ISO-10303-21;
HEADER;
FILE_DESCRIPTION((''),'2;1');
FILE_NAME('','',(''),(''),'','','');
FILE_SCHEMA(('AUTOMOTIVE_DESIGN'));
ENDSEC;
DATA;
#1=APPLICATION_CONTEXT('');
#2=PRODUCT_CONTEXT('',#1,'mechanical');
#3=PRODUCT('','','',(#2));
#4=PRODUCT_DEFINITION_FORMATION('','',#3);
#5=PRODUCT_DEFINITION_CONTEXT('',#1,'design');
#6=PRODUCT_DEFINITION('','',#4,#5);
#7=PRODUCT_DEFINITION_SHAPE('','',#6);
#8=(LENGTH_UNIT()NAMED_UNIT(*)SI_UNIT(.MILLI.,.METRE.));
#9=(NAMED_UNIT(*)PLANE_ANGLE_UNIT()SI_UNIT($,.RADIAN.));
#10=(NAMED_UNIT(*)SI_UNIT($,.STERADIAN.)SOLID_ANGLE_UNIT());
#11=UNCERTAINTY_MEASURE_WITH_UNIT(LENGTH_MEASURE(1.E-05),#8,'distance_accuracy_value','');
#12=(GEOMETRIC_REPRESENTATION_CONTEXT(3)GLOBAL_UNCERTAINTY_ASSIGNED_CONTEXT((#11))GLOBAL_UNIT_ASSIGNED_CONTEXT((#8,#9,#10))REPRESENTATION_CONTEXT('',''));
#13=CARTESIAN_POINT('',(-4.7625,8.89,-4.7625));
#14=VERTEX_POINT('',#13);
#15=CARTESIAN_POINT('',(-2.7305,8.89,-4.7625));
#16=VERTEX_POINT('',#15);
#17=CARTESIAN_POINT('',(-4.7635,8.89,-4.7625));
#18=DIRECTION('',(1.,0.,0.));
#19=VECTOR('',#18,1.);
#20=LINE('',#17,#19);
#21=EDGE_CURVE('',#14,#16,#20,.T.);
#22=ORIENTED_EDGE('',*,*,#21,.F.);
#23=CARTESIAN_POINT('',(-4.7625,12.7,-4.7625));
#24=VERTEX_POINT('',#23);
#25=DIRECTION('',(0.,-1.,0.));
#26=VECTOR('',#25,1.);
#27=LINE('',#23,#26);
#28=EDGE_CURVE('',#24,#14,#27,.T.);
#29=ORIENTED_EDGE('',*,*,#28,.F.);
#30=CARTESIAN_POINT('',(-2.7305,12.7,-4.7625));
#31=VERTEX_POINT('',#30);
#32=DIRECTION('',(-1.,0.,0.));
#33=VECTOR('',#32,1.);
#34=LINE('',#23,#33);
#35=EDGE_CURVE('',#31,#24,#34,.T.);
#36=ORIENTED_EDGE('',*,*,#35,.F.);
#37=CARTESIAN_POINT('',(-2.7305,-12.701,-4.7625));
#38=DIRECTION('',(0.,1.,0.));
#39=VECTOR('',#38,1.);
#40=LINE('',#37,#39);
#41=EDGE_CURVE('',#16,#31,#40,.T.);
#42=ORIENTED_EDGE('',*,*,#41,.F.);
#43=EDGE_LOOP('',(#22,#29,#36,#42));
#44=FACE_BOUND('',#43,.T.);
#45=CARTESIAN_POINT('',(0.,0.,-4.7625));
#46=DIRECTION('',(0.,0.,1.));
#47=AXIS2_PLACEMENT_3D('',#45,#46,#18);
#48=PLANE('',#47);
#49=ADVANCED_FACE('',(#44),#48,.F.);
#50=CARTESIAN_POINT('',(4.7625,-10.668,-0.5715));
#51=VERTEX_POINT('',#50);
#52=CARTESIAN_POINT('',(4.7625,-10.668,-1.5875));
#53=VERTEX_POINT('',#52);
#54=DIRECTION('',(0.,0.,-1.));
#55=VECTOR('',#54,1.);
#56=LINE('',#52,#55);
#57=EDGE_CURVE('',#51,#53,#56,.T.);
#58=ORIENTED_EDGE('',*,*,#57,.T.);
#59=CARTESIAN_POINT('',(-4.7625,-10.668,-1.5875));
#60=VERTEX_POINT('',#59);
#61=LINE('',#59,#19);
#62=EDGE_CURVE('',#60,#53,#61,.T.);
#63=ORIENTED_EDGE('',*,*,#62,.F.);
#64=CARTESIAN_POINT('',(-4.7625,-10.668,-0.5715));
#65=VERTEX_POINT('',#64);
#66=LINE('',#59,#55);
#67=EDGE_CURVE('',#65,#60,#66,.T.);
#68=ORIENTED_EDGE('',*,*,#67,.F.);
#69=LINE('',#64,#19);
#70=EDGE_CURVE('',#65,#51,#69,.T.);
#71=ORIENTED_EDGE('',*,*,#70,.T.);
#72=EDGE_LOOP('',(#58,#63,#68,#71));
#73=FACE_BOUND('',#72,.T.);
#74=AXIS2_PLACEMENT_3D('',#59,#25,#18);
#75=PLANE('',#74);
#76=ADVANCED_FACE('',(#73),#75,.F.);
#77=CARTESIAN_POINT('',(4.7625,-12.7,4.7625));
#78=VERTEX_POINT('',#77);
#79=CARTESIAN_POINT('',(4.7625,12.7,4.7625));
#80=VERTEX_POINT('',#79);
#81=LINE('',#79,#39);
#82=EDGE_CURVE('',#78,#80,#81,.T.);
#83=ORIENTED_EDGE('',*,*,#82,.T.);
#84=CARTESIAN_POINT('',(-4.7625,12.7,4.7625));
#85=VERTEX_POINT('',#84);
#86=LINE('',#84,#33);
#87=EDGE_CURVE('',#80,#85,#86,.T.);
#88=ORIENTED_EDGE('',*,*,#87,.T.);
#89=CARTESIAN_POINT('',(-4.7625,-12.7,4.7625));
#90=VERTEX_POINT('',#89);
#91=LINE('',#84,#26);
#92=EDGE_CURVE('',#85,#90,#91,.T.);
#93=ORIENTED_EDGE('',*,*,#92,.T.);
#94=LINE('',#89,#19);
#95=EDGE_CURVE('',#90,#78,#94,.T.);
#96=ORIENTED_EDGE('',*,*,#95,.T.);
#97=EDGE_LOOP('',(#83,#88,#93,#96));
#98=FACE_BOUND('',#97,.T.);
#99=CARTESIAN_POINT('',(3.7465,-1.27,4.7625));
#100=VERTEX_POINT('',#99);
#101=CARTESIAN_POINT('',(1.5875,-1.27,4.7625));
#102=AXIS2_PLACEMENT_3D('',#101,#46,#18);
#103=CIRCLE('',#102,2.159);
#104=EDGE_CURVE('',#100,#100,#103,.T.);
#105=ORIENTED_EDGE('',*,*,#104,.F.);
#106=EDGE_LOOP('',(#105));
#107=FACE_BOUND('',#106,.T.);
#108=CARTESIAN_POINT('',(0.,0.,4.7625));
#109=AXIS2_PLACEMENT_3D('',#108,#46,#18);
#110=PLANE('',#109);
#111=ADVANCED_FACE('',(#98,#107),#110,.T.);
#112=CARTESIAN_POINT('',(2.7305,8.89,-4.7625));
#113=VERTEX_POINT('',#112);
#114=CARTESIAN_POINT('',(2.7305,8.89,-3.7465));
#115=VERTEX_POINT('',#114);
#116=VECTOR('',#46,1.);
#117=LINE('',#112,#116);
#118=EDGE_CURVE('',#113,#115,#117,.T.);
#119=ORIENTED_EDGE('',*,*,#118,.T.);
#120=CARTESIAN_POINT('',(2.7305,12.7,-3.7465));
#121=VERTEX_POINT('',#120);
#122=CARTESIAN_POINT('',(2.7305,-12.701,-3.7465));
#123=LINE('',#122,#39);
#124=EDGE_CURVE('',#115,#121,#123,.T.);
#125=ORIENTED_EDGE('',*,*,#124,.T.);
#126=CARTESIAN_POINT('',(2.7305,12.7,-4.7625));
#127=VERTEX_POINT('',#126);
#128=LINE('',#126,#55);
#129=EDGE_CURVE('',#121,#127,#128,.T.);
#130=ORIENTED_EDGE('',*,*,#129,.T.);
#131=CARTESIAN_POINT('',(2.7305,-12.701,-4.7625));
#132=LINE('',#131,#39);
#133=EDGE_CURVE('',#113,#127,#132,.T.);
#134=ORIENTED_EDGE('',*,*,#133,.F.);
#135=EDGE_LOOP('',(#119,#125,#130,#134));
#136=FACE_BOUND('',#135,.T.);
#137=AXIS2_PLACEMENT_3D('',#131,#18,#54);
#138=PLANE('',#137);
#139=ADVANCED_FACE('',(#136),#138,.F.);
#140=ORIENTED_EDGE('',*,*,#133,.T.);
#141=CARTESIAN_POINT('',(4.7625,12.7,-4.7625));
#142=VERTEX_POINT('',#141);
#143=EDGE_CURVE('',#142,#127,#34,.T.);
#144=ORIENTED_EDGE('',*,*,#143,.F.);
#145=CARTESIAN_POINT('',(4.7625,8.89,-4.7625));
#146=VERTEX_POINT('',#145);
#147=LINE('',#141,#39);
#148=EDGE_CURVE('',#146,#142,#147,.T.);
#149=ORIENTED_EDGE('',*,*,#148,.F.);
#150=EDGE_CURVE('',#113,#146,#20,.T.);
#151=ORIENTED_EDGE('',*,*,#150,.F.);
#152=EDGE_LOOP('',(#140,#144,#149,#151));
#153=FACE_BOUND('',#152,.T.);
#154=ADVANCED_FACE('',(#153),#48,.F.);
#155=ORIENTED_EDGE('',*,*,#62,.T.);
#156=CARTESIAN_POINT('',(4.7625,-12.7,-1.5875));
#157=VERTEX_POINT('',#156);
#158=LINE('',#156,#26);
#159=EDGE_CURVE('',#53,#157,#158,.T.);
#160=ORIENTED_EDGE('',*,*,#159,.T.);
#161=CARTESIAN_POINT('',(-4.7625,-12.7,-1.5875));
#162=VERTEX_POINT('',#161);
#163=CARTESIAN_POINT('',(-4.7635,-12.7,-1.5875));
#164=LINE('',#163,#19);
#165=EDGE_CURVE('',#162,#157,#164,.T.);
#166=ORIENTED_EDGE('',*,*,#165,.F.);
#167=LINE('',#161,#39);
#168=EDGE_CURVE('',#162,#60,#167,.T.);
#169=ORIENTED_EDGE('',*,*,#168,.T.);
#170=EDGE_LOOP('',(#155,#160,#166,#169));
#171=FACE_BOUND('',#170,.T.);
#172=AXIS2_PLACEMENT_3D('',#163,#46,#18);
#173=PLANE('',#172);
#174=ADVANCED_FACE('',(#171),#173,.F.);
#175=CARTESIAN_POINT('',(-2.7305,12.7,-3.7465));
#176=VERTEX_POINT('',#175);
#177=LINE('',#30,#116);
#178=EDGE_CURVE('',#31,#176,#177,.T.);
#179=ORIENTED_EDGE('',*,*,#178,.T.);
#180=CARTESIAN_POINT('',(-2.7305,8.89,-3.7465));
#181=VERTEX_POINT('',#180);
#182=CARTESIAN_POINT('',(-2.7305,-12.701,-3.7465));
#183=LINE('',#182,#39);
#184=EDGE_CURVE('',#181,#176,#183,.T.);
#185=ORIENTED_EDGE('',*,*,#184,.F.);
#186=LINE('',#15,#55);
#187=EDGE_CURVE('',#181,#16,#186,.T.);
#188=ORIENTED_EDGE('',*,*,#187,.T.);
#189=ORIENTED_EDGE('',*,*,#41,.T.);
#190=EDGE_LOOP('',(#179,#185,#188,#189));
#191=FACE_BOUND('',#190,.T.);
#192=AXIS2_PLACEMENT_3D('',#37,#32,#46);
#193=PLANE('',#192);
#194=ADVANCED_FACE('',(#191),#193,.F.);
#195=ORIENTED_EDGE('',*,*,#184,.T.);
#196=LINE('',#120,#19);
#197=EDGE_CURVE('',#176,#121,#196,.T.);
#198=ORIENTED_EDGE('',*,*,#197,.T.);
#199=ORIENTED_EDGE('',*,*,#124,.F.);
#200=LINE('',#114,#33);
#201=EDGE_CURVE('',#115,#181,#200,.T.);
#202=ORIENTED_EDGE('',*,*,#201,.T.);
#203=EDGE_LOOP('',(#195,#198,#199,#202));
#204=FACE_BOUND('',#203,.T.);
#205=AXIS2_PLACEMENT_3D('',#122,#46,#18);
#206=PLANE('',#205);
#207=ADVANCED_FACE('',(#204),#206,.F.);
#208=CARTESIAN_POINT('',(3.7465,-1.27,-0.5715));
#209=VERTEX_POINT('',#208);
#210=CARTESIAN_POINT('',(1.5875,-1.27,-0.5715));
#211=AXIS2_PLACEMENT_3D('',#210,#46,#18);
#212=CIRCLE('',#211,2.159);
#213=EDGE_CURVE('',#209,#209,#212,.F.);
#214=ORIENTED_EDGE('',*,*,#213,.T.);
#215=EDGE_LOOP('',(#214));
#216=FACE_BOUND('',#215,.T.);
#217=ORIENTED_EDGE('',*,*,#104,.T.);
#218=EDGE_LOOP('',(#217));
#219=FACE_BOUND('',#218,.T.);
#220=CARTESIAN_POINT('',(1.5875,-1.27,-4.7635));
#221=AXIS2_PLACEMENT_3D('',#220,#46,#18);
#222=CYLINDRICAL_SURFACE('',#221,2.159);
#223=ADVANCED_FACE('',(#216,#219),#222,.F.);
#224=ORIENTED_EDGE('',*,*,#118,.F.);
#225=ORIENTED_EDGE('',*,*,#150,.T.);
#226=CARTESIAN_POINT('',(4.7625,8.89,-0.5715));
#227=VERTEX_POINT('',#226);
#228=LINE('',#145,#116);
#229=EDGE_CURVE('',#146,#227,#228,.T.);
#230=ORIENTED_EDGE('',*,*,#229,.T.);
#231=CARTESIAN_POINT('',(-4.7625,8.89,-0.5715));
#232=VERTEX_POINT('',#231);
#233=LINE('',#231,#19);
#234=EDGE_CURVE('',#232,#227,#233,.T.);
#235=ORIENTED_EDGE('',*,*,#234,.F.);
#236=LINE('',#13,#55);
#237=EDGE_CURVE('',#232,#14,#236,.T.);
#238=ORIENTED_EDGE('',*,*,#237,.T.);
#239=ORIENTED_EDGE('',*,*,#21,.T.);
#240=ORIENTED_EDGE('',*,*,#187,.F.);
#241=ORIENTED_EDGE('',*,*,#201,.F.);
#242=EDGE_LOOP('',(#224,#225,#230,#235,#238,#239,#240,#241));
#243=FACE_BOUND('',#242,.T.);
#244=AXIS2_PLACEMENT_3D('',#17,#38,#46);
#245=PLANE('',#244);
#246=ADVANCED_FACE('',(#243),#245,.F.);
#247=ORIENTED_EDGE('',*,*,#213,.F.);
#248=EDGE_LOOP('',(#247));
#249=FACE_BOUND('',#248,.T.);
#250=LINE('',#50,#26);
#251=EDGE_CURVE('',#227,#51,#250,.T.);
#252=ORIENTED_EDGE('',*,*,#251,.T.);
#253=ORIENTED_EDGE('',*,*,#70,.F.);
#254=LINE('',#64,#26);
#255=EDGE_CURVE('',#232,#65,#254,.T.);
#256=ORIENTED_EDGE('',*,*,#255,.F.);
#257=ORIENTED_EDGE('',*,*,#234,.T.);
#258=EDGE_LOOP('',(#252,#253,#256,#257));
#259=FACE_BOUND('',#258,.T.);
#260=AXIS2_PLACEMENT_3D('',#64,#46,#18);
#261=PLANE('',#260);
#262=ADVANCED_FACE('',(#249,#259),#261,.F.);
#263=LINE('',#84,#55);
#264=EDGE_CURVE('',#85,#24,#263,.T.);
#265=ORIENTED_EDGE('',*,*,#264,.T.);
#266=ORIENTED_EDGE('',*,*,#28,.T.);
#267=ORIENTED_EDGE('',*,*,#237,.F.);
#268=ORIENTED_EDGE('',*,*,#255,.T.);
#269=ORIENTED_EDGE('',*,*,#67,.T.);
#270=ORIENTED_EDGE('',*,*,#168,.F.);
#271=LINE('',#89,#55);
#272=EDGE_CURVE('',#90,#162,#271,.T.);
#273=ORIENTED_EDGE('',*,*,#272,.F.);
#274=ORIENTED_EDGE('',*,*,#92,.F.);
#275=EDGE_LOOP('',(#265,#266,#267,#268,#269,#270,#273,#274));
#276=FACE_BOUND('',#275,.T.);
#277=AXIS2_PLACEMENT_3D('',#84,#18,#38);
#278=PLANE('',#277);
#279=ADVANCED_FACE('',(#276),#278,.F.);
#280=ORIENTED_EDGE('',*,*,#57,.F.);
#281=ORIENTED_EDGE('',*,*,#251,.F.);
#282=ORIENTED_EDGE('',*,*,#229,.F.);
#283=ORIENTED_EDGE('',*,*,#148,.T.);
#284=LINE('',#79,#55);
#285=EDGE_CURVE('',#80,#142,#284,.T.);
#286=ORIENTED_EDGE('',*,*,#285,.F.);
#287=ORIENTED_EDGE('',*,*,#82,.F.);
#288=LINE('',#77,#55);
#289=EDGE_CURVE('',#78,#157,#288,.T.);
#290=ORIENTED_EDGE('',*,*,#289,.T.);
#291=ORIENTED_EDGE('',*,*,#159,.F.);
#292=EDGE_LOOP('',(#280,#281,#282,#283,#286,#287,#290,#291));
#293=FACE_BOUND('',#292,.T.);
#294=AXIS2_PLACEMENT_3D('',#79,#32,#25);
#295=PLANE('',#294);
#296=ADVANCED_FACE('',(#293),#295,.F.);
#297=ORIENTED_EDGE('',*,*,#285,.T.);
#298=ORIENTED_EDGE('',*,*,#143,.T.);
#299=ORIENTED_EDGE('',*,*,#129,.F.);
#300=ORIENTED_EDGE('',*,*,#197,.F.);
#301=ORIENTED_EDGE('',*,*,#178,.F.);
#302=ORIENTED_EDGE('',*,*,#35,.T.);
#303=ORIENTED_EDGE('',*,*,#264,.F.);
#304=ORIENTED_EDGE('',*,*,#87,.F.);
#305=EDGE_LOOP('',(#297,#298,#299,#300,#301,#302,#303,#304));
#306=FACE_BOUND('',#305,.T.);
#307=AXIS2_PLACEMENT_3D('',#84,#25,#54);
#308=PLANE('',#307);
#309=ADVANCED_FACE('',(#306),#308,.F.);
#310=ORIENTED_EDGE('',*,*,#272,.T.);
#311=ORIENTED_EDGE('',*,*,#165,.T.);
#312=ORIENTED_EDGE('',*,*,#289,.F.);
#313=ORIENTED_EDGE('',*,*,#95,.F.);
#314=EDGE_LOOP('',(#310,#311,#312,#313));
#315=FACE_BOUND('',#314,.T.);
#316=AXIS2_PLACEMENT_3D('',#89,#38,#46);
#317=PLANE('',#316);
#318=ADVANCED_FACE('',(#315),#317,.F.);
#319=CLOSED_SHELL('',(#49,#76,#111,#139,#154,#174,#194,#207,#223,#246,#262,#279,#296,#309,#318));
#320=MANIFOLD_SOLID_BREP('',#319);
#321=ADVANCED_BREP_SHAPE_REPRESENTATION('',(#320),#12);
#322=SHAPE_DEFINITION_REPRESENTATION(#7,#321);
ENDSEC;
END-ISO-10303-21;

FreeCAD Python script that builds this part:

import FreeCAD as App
import Part
import Sketcher
from FreeCAD import Vector
Q = App.Units.Quantity

doc = App.newDocument("Part")
body = doc.addObject("PartDesign::Body", "Body")

# Sketch on XY plane
sketch1 = doc.addObject("Sketcher::SketchObject", "Sketch")
body.addObject(sketch1)
sketch1.AttachmentSupport = (doc.XY_Plane, [""])
sketch1.MapMode = "FlatFace"
sketch1.addGeometry(Part.LineSegment(Vector(-4.7625, 12.7, 0), Vector(-4.7625, -12.7, 0)), False)
sketch1.addGeometry(Part.LineSegment(Vector(-4.7625, -12.7, 0), Vector(4.7625, -12.7, 0)), False)
sketch1.addGeometry(Part.LineSegment(Vector(4.7625, -12.7, 0), Vector(4.7625, 12.7, 0)), False)
sketch1.addGeometry(Part.LineSegment(Vector(4.7625, 12.7, 0), Vector(-4.7625, 12.7, 0)), False)
sketch1.addConstraint(Sketcher.Constraint("Coincident", 0, 2, 1, 1))
sketch1.addConstraint(Sketcher.Constraint("Coincident", 1, 2, 2, 1))
sketch1.addConstraint(Sketcher.Constraint("Coincident", 2, 2, 3, 1))
sketch1.addConstraint(Sketcher.Constraint("Coincident", 3, 2, 0, 1))
sketch1.addConstraint(Sketcher.Constraint("Vertical", 0))
sketch1.addConstraint(Sketcher.Constraint("Horizontal", 1))
sketch1.addConstraint(Sketcher.Constraint("Vertical", 2))
sketch1.addConstraint(Sketcher.Constraint("Horizontal", 3))
sketch1.addConstraint(Sketcher.Constraint("Symmetric", 0, 2, 2, 2, -1, 1))
sketch1.addConstraint(Sketcher.Constraint("DistanceY", 0, 2, 0, 1, Q("1 in")))
sketch1.addConstraint(Sketcher.Constraint("DistanceX", 1, 1, 1, 2, Q("0.375 in")))
pad1 = doc.addObject("PartDesign::Pad", "Pad")
body.addObject(pad1)
pad1.Profile = sketch1
pad1.Length = Q("0.375 in")
pad1.Midplane = True

# Sketch on YZ plane
sketch2 = doc.addObject("Sketcher::SketchObject", "Sketch001")
body.addObject(sketch2)
sketch2.AttachmentSupport = (doc.YZ_Plane, [""])
sketch2.MapMode = "FlatFace"
sketch2.AttachmentOffset = App.Placement(Vector(0, 0, 0.1875 * 25.4), App.Rotation())
sketch2.addGeometry(Part.LineSegment(Vector(8.89, -1.5875, 0), Vector(-12.7, -1.5875, 0)), False)
sketch2.addGeometry(Part.LineSegment(Vector(-12.7, -1.5875, 0), Vector(-12.7, -4.7625, 0)), False)
sketch2.addGeometry(Part.LineSegment(Vector(-12.7, -4.7625, 0), Vector(8.89, -4.7625, 0)), False)
sketch2.addGeometry(Part.LineSegment(Vector(8.89, -4.7625, 0), Vector(8.89, -1.5875, 0)), False)
sketch2.addConstraint(Sketcher.Constraint("Coincident", 0, 2, 1, 1))
sketch2.addConstraint(Sketcher.Constraint("Coincident", 1, 2, 2, 1))
sketch2.addConstraint(Sketcher.Constraint("Coincident", 2, 2, 3, 1))
sketch2.addConstraint(Sketcher.Constraint("Coincident", 3, 2, 0, 1))
sketch2.addConstraint(Sketcher.Constraint("Horizontal", 0))
sketch2.addConstraint(Sketcher.Constraint("Vertical", 1))
sketch2.addConstraint(Sketcher.Constraint("Horizontal", 2))
sketch2.addConstraint(Sketcher.Constraint("Vertical", 3))
sketch2.addConstraint(Sketcher.Constraint("DistanceX", 0, 2, 0, 1, Q("0.85 in")))
sketch2.addConstraint(Sketcher.Constraint("DistanceX", 0, 2, -1, 1, Q("0.5 in")))
sketch2.addConstraint(Sketcher.Constraint("DistanceY", 1, 2, 1, 1, Q("0.125 in")))
sketch2.addConstraint(Sketcher.Constraint("DistanceY", 0, 2, -1, 1, Q("0.0625 in")))
pocket1 = doc.addObject("PartDesign::Pocket", "Pocket")
body.addObject(pocket1)
pocket1.Profile = sketch2
pocket1.Type = "UpToFirst"

# Sketch on XY plane
sketch3 = doc.addObject("Sketcher::SketchObject", "Sketch002")
body.addObject(sketch3)
sketch3.AttachmentSupport = (doc.XY_Plane, [""])
sketch3.MapMode = "FlatFace"
sketch3.AttachmentOffset = App.Placement(Vector(0, 0, 0.1875 * 25.4), App.Rotation())
sketch3.addGeometry(Part.Circle(Vector(1.5875, -1.27, 0), Vector(0, 0, 1), 2.159), False)
sketch3.addConstraint(Sketcher.Constraint("Diameter", 0, Q("0.17 in")))
sketch3.addConstraint(Sketcher.Constraint("DistanceY", 0, 3, -1, 1, Q("0.05 in")))
sketch3.addConstraint(Sketcher.Constraint("DistanceX", -1, 1, 0, 3, Q("0.0625 in")))
pocket2 = doc.addObject("PartDesign::Pocket", "Pocket001")
body.addObject(pocket2)
pocket2.Profile = sketch3
pocket2.Type = "UpToFirst"

# Sketch on XZ plane
sketch4 = doc.addObject("Sketcher::SketchObject", "Sketch003")
body.addObject(sketch4)
sketch4.AttachmentSupport = (doc.XZ_Plane, [""])
sketch4.MapMode = "FlatFace"
sketch4.AttachmentOffset = App.Placement(Vector(0, 0, -0.5 * 25.4), App.Rotation())
sketch4.addGeometry(Part.LineSegment(Vector(-2.7305, -4.7625, 0), Vector(-2.7305, -3.7465, 0)), False)
sketch4.addGeometry(Part.LineSegment(Vector(-2.7305, -3.7465, 0), Vector(2.7305, -3.7465, 0)), False)
sketch4.addGeometry(Part.LineSegment(Vector(2.7305, -3.7465, 0), Vector(2.7305, -4.7625, 0)), False)
sketch4.addGeometry(Part.LineSegment(Vector(2.7305, -4.7625, 0), Vector(-2.7305, -4.7625, 0)), False)
sketch4.addConstraint(Sketcher.Constraint("Coincident", 0, 2, 1, 1))
sketch4.addConstraint(Sketcher.Constraint("Coincident", 1, 2, 2, 1))
sketch4.addConstraint(Sketcher.Constraint("Coincident", 2, 2, 3, 1))
sketch4.addConstraint(Sketcher.Constraint("Coincident", 3, 2, 0, 1))
sketch4.addConstraint(Sketcher.Constraint("Vertical", 0))
sketch4.addConstraint(Sketcher.Constraint("Horizontal", 1))
sketch4.addConstraint(Sketcher.Constraint("Vertical", 2))
sketch4.addConstraint(Sketcher.Constraint("Horizontal", 3))
sketch4.addConstraint(Sketcher.Constraint("DistanceY", 0, 1, 0, 2, Q("0.04 in")))
sketch4.addConstraint(Sketcher.Constraint("DistanceX", 1, 1, 1, 2, Q("0.215 in")))
sketch4.addConstraint(Sketcher.Constraint("DistanceY", 2, 2, -1, 1, Q("0.1875 in")))
sketch4.addConstraint(Sketcher.Constraint("DistanceX", 0, 2, -1, 1, Q("0.1075 in")))
pocket3 = doc.addObject("PartDesign::Pocket", "Pocket002")
body.addObject(pocket3)
pocket3.Profile = sketch4
pocket3.Type = "UpToFirst"
pocket3.Reversed = True

# Sketch on YZ plane
sketch5 = doc.addObject("Sketcher::SketchObject", "Sketch004")
body.addObject(sketch5)
sketch5.AttachmentSupport = (doc.YZ_Plane, [""])
sketch5.MapMode = "FlatFace"
sketch5.AttachmentOffset = App.Placement(Vector(0, 0, 0.1875 * 25.4), App.Rotation())
sketch5.addGeometry(Part.LineSegment(Vector(8.89, -0.5715, 0), Vector(-10.668, -0.5715, 0)), False)
sketch5.addGeometry(Part.LineSegment(Vector(-10.668, -0.5715, 0), Vector(-10.668, -1.5875, 0)), False)
sketch5.addGeometry(Part.LineSegment(Vector(-10.668, -1.5875, 0), Vector(8.89, -1.5875, 0)), False)
sketch5.addGeometry(Part.LineSegment(Vector(8.89, -1.5875, 0), Vector(8.89, -0.5715, 0)), False)
sketch5.addConstraint(Sketcher.Constraint("Coincident", 0, 2, 1, 1))
sketch5.addConstraint(Sketcher.Constraint("Coincident", 1, 2, 2, 1))
sketch5.addConstraint(Sketcher.Constraint("Coincident", 2, 2, 3, 1))
sketch5.addConstraint(Sketcher.Constraint("Coincident", 3, 2, 0, 1))
sketch5.addConstraint(Sketcher.Constraint("Horizontal", 0))
sketch5.addConstraint(Sketcher.Constraint("Vertical", 1))
sketch5.addConstraint(Sketcher.Constraint("Horizontal", 2))
sketch5.addConstraint(Sketcher.Constraint("Vertical", 3))
sketch5.addConstraint(Sketcher.Constraint("DistanceX", 0, 2, 0, 1, Q("0.77 in")))
sketch5.addConstraint(Sketcher.Constraint("DistanceY", 1, 2, 1, 1, Q("0.04 in")))
sketch5.addConstraint(Sketcher.Constraint("DistanceX", 0, 2, -1, 1, Q("0.42 in")))
sketch5.addConstraint(Sketcher.Constraint("DistanceY", 1, 2, -1, 1, Q("0.0625 in")))
pocket4 = doc.addObject("PartDesign::Pocket", "Pocket003")
body.addObject(pocket4)
pocket4.Profile = sketch5
pocket4.Type = "ThroughAll"

doc.recompute()
